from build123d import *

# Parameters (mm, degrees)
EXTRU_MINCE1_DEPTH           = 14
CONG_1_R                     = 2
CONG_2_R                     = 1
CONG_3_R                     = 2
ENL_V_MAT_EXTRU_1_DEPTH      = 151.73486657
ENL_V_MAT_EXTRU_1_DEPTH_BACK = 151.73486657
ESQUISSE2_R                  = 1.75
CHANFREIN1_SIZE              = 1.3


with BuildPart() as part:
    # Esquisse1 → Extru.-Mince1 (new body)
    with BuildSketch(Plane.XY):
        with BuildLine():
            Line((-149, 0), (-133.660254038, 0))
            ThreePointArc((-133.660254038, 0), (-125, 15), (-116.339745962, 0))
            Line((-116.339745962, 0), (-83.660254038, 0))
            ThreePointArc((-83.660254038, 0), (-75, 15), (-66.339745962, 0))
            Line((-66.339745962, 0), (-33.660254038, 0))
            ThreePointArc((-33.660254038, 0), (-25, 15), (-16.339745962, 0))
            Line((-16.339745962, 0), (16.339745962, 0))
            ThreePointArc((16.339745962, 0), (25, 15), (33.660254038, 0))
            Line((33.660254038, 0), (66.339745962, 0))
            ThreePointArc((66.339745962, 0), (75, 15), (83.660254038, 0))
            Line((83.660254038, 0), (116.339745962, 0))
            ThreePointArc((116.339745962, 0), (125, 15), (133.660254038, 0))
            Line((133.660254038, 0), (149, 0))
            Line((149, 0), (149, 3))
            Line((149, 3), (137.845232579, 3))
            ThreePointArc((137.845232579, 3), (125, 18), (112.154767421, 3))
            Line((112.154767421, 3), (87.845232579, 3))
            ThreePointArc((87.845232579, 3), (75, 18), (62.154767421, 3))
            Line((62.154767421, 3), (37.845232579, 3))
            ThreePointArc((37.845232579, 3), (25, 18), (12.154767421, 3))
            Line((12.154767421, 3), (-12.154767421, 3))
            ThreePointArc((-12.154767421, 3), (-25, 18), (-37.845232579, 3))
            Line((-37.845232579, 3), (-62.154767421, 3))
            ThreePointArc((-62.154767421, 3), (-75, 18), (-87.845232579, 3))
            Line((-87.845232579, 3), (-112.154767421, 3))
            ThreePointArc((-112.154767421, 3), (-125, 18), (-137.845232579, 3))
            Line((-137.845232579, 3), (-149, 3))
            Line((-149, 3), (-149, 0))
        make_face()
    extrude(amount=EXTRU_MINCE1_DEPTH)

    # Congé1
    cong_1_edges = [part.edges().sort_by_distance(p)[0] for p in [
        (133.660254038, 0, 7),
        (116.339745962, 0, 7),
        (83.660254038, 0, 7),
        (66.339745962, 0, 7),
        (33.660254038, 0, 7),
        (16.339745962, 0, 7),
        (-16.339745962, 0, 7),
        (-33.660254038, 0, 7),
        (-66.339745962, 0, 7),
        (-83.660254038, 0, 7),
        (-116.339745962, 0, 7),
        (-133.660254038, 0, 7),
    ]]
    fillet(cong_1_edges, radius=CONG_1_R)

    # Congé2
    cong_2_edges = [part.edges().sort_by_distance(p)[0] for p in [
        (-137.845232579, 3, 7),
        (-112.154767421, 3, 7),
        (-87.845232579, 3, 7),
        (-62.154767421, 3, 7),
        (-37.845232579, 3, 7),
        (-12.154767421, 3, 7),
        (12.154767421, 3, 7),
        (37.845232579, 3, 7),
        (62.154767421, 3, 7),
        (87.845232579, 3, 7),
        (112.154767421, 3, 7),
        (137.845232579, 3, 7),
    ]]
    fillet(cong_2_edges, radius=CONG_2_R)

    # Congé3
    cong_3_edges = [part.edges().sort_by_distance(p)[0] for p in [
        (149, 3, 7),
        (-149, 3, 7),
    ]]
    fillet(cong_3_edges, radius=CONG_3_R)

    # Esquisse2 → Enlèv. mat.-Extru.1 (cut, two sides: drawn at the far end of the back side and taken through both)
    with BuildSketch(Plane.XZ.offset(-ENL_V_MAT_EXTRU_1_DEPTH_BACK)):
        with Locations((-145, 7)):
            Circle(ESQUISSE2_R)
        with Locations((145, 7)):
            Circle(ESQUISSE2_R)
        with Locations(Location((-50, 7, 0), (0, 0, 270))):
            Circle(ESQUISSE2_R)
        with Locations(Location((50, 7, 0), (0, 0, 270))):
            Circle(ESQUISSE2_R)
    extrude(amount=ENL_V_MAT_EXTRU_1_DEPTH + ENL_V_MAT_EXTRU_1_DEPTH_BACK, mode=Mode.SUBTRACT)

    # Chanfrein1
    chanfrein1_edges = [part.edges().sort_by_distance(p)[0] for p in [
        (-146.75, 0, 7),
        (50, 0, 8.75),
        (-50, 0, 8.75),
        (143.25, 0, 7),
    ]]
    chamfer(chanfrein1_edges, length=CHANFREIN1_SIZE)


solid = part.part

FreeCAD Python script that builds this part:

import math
import FreeCAD as App
import Part
import Sketcher

V = App.Vector
Q = App.Units.Quantity


def edges_at(feature, points):
    """Names of the edges that pass closest to the given points."""
    edges = feature.Shape.Edges
    near = lambda p: min(range(len(edges)), key=lambda i: edges[i].distToShape(Part.Vertex(*p))[0])
    return sorted({f"Edge{near(p) + 1}" for p in points})

doc = App.newDocument("Part")
body = doc.addObject("PartDesign::Body", "Body")

sketch1 = body.newObject("Sketcher::SketchObject", "Sketch")
sketch1.AttachmentSupport = (doc.getObject("XY_Plane"), [""])
sketch1.MapMode = "FlatFace"
sketch1.addGeometry([
    Part.LineSegment(V(-149, 0, 0), V(-133.660254, 0, 0)),
    Part.ArcOfCircle(Part.Circle(V(-125, 5, 0), V(0, 0, 1), 10), math.radians(-30), math.radians(210)),
    Part.LineSegment(V(-116.339746, 0, 0), V(-83.660254, 0, 0)),
    Part.ArcOfCircle(Part.Circle(V(-75, 5, 0), V(0, 0, 1), 10), math.radians(-30), math.radians(210)),
    Part.LineSegment(V(-66.339746, 0, 0), V(-33.660254, 0, 0)),
    Part.ArcOfCircle(Part.Circle(V(-25, 5, 0), V(0, 0, 1), 10), math.radians(-30), math.radians(210)),
    Part.LineSegment(V(-16.339746, 0, 0), V(16.339746, 0, 0)),
    Part.ArcOfCircle(Part.Circle(V(25, 5, 0), V(0, 0, 1), 10), math.radians(-30), math.radians(210)),
    Part.LineSegment(V(33.660254, 0, 0), V(66.339746, 0, 0)),
    Part.ArcOfCircle(Part.Circle(V(75, 5, 0), V(0, 0, 1), 10), math.radians(-30), math.radians(210)),
    Part.LineSegment(V(83.660254, 0, 0), V(116.339746, 0, 0)),
    Part.ArcOfCircle(Part.Circle(V(125, 5, 0), V(0, 0, 1), 10), math.radians(-30), math.radians(210)),
    Part.LineSegment(V(133.660254, 0, 0), V(149, 0, 0)),
    Part.LineSegment(V(149, 0, 0), V(149, 3, 0)),
    Part.LineSegment(V(149, 3, 0), V(137.845233, 3, 0)),
    Part.ArcOfCircle(Part.Circle(V(125, 5, 0), V(0, 0, 1), 13), math.radians(-8.849883), math.radians(188.849883)),
    Part.LineSegment(V(112.154767, 3, 0), V(87.845233, 3, 0)),
    Part.ArcOfCircle(Part.Circle(V(75, 5, 0), V(0, 0, 1), 13), math.radians(-8.849883), math.radians(188.849883)),
    Part.LineSegment(V(62.154767, 3, 0), V(37.845233, 3, 0)),
    Part.ArcOfCircle(Part.Circle(V(25, 5, 0), V(0, 0, 1), 13), math.radians(-8.849883), math.radians(188.849883)),
    Part.LineSegment(V(12.154767, 3, 0), V(-12.154767, 3, 0)),
    Part.ArcOfCircle(Part.Circle(V(-25, 5, 0), V(0, 0, 1), 13), math.radians(-8.849883), math.radians(188.849883)),
    Part.LineSegment(V(-37.845233, 3, 0), V(-62.154767, 3, 0)),
    Part.ArcOfCircle(Part.Circle(V(-75, 5, 0), V(0, 0, 1), 13), math.radians(-8.849883), math.radians(188.849883)),
    Part.LineSegment(V(-87.845233, 3, 0), V(-112.154767, 3, 0)),
    Part.ArcOfCircle(Part.Circle(V(-125, 5, 0), V(0, 0, 1), 13), math.radians(-8.849883), math.radians(188.849883)),
    Part.LineSegment(V(-137.845233, 3, 0), V(-149, 3, 0)),
    Part.LineSegment(V(-149, 3, 0), V(-149, 0, 0)),
], False)
sketch1.addConstraint([
    Sketcher.Constraint("Coincident", 0, 2, 1, 2),
    Sketcher.Constraint("Coincident", 1, 1, 2, 1),
    Sketcher.Constraint("Coincident", 2, 2, 3, 2),
    Sketcher.Constraint("Coincident", 3, 1, 4, 1),
    Sketcher.Constraint("Coincident", 4, 2, 5, 2),
    Sketcher.Constraint("Coincident", 5, 1, 6, 1),
    Sketcher.Constraint("Coincident", 6, 2, 7, 2),
    Sketcher.Constraint("Coincident", 7, 1, 8, 1),
    Sketcher.Constraint("Coincident", 8, 2, 9, 2),
    Sketcher.Constraint("Coincident", 9, 1, 10, 1),
    Sketcher.Constraint("Coincident", 10, 2, 11, 2),
    Sketcher.Constraint("Coincident", 11, 1, 12, 1),
    Sketcher.Constraint("Coincident", 12, 2, 13, 1),
    Sketcher.Constraint("Coincident", 13, 2, 14, 1),
    Sketcher.Constraint("Coincident", 14, 2, 15, 1),
    Sketcher.Constraint("Coincident", 15, 2, 16, 1),
    Sketcher.Constraint("Coincident", 16, 2, 17, 1),
    Sketcher.Constraint("Coincident", 17, 2, 18, 1),
    Sketcher.Constraint("Coincident", 18, 2, 19, 1),
    Sketcher.Constraint("Coincident", 19, 2, 20, 1),
    Sketcher.Constraint("Coincident", 20, 2, 21, 1),
    Sketcher.Constraint("Coincident", 21, 2, 22, 1),
    Sketcher.Constraint("Coincident", 22, 2, 23, 1),
    Sketcher.Constraint("Coincident", 23, 2, 24, 1),
    Sketcher.Constraint("Coincident", 24, 2, 25, 1),
    Sketcher.Constraint("Coincident", 25, 2, 26, 1),
    Sketcher.Constraint("Coincident", 26, 2, 27, 1),
    Sketcher.Constraint("Coincident", 27, 2, 0, 1),
    Sketcher.Constraint("Horizontal", 0),
    Sketcher.Constraint("Horizontal", 2),
    Sketcher.Constraint("Horizontal", 4),
    Sketcher.Constraint("Horizontal", 6),
    Sketcher.Constraint("Horizontal", 8),
    Sketcher.Constraint("Horizontal", 10),
    Sketcher.Constraint("Horizontal", 12),
    Sketcher.Constraint("Vertical", 13),
    Sketcher.Constraint("Horizontal", 14),
    Sketcher.Constraint("Horizontal", 16),
    Sketcher.Constraint("Horizontal", 18),
    Sketcher.Constraint("Horizontal", 20),
    Sketcher.Constraint("Horizontal", 22),
    Sketcher.Constraint("Horizontal", 24),
    Sketcher.Constraint("Horizontal", 26),
    Sketcher.Constraint("Vertical", 27),
    Sketcher.Constraint("Coincident", 15, 3, 11, 3),
    Sketcher.Constraint("Coincident", 17, 3, 9, 3),
    Sketcher.Constraint("Coincident", 19, 3, 7, 3),
    Sketcher.Constraint("Coincident", 21, 3, 5, 3),
    Sketcher.Constraint("Coincident", 23, 3, 3, 3),
    Sketcher.Constraint("Coincident", 25, 3, 1, 3),
    Sketcher.Constraint("Equal", 1, 3),
    Sketcher.Constraint("Equal", 3, 5),
    Sketcher.Constraint("Equal", 5, 7),
    Sketcher.Constraint("Equal", 7, 9),
    Sketcher.Constraint("Equal", 9, 11),
    Sketcher.Constraint("Equal", 15, 17),
    Sketcher.Constraint("Equal", 17, 19),
    Sketcher.Constraint("Equal", 19, 21),
    Sketcher.Constraint("Equal", 21, 23),
    Sketcher.Constraint("Equal", 23, 25),
    Sketcher.Constraint("Symmetric", 5, 1, 6, 2, -1, 1),
    Sketcher.Constraint("Symmetric", 4, 2, 7, 1, -1, 1),
    Sketcher.Constraint("Symmetric", 2, 2, 9, 1, -1, 1),
    Sketcher.Constraint("Symmetric", 0, 2, 11, 1, -1, 1),
    Sketcher.Constraint("Symmetric", 3, 3, 9, 3, -2),
    Sketcher.Constraint("Symmetric", 1, 3, 11, 3, -2),
    Sketcher.Constraint("Symmetric", 18, 2, 21, 2, -2),
    Sketcher.Constraint("Symmetric", 13, 2, 26, 2, -2),
    Sketcher.Constraint("Horizontal", 1, 3, 3, 3),
    Sketcher.Constraint("Horizontal", 3, 3, 5, 3),
    Sketcher.Constraint("Horizontal", 14, 2, 15, 2),
    Sketcher.Constraint("Horizontal", 16, 2, 17, 2),
    Sketcher.Constraint("Horizontal", 18, 2, 19, 2),
    Sketcher.Constraint("Horizontal", 22, 2, 23, 2),
    Sketcher.Constraint("Equal", 2, 4),
    Sketcher.Constraint("Equal", 4, 6),
    Sketcher.Constraint("Radius", 1, Q("10 mm")),
    Sketcher.Constraint("Radius", 15, Q("13 mm")),
    Sketcher.Constraint("DistanceY", 13, 1, 13, 2, Q("3 mm")),
    Sketcher.Constraint("DistanceX", 1, 3, -1, 1, Q("125 mm")),
    Sketcher.Constraint("DistanceY", -1, 1, 1, 3, Q("5 mm")),
    Sketcher.Constraint("DistanceX", -1, 1, 12, 2, Q("149 mm")),
])
pad1 = body.newObject("PartDesign::Pad", "Pad")
pad1.Profile = sketch1
pad1.Length = 14
doc.recompute()

fillet = body.newObject("PartDesign::Fillet", "Fillet")
fillet.Base = (pad1, edges_at(pad1, [
    (133.66, 0, 7),
    (116.34, 0, 7),
    (83.66, 0, 7),
    (66.34, 0, 7),
    (33.66, 0, 7),
    (16.34, 0, 7),
    (-16.34, 0, 7),
    (-33.66, 0, 7),
    (-66.34, 0, 7),
    (-83.66, 0, 7),
    (-116.34, 0, 7),
    (-133.66, 0, 7),
]))
fillet.Radius = 2
doc.recompute()

fillet2 = body.newObject("PartDesign::Fillet", "Fillet001")
fillet2.Base = (fillet, edges_at(fillet, [
    (-137.845, 3, 7),
    (-112.155, 3, 7),
    (-87.845, 3, 7),
    (-62.155, 3, 7),
    (-37.845, 3, 7),
    (-12.155, 3, 7),
    (12.155, 3, 7),
    (37.845, 3, 7),
    (62.155, 3, 7),
    (87.845, 3, 7),
    (112.155, 3, 7),
    (137.845, 3, 7),
]))
fillet2.Radius = 1
doc.recompute()

fillet3 = body.newObject("PartDesign::Fillet", "Fillet002")
fillet3.Base = (fillet2, edges_at(fillet2, [(149, 3, 7), (-149, 3, 7)]))
fillet3.Radius = 2

sketch2 = body.newObject("Sketcher::SketchObject", "Sketch001")
sketch2.AttachmentSupport = (doc.getObject("XZ_Plane"), [""])
sketch2.MapMode = "FlatFace"
sketch2.addGeometry([
    Part.Circle(V(-145, 7, 0), V(0, 0, 1), 1.75),
    Part.Circle(V(145, 7, 0), V(0, 0, 1), 1.75),
    Part.Circle(V(-50, 7, 0), V(0, 0, 1), 1.75),
    Part.Circle(V(50, 7, 0), V(0, 0, 1), 1.75),
], False)
sketch2.addConstraint([
    Sketcher.Constraint("Equal", 0, 1),
    Sketcher.Constraint("Equal", 1, 2),
    Sketcher.Constraint("Equal", 2, 3),
    Sketcher.Constraint("Symmetric", 0, 3, 1, 3, -2),
    Sketcher.Constraint("Symmetric", 2, 3, 3, 3, -2),
    Sketcher.Constraint("Horizontal", 1, 3, 2, 3),
    Sketcher.Constraint("Diameter", 0, Q("3.5 mm")),
    Sketcher.Constraint("DistanceX", 0, 3, -1, 1, Q("145 mm")),
    Sketcher.Constraint("DistanceY", -1, 1, 0, 3, Q("7 mm")),
    Sketcher.Constraint("DistanceX", 2, 3, -1, 1, Q("50 mm")),
])
pocket1 = body.newObject("PartDesign::Pocket", "Pocket")
pocket1.Profile = sketch2
pocket1.Type = "ThroughAll"
pocket1.Midplane = True
doc.recompute()

chamfer = body.newObject("PartDesign::Chamfer", "Chamfer")
chamfer.Base = (pocket1, edges_at(pocket1, [
    (-146.75, 0, 7),
    (50, 0, 8.75),
    (-50, 0, 8.75),
    (143.25, 0, 7),
]))
chamfer.Size = 1.3

doc.recompute()
